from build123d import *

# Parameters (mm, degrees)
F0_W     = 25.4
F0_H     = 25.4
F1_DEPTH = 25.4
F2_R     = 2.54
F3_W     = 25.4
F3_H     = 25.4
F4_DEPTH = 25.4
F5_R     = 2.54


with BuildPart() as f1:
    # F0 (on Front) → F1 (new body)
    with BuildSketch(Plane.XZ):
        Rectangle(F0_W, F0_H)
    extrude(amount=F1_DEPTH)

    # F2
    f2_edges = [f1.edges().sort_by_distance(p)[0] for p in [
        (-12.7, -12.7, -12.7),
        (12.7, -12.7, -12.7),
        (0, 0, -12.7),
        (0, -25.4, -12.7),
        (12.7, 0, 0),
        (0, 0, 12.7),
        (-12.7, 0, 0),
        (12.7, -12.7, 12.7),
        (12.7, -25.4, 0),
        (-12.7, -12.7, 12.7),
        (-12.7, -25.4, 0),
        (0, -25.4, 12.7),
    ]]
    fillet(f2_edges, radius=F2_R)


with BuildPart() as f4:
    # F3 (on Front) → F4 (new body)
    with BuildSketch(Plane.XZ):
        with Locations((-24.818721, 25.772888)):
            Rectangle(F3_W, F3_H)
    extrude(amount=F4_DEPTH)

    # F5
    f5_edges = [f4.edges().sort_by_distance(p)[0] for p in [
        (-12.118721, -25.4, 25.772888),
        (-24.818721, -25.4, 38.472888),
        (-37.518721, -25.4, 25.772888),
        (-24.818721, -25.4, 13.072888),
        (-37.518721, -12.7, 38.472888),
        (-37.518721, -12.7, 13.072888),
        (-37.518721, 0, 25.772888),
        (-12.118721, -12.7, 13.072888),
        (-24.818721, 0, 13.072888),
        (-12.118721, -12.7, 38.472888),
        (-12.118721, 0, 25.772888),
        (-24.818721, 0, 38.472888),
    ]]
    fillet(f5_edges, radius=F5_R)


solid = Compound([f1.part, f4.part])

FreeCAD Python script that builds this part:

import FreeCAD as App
import Part
import Sketcher
Q = App.Units.Quantity


def add_polygon(sketch, points):
    """Adds a closed chain of lines whose ends are joined by coincident constraints."""
    first, n = sketch.GeometryCount, len(points)
    for a, b in zip(points, points[1:] + points[:1]):
        sketch.addGeometry(Part.LineSegment(App.Vector(*a, 0), App.Vector(*b, 0)), False)
    for i in range(n):
        sketch.addConstraint(Sketcher.Constraint("Coincident", first + i, 2, first + (i + 1) % n, 1))

doc = App.newDocument("Part")
body = doc.addObject("PartDesign::Body", "Body")

sketch1 = body.newObject("Sketcher::SketchObject", "Sketch")
sketch1.AttachmentSupport = (doc.getObject("XZ_Plane"), [""])
sketch1.MapMode = "FlatFace"
add_polygon(sketch1, [(-13, 13), (-13, -13), (13, -13), (13, 13)])
sketch1.addConstraint(Sketcher.Constraint("Vertical", 0))
sketch1.addConstraint(Sketcher.Constraint("Horizontal", 1))
sketch1.addConstraint(Sketcher.Constraint("Vertical", 2))
sketch1.addConstraint(Sketcher.Constraint("Horizontal", 3))
sketch1.addConstraint(Sketcher.Constraint("Symmetric", 0, 2, 2, 2, -1, 1))
sketch1.addConstraint(Sketcher.Constraint("Equal", 3, 0))
sketch1.addConstraint(Sketcher.Constraint("DistanceX", 1, 1, 1, 2, Q("1 in")))
pad1 = body.newObject("PartDesign::Pad", "Pad")
pad1.Profile = sketch1
pad1.Length = Q("1 in")
doc.recompute()

fillet = body.newObject("PartDesign::Fillet", "Fillet")
fillet.Base = (pad1, ["Edge1"])
fillet.UseAllEdges = True
fillet.Radius = Q("0.1 in")
body2 = doc.addObject("PartDesign::Body", "Body001")

sketch2 = body2.newObject("Sketcher::SketchObject", "Sketch001")
sketch2.AttachmentSupport = (doc.getObject("XZ_Plane001"), [""])
sketch2.MapMode = "FlatFace"
add_polygon(sketch2, [(-38, 38), (-38, 13), (-12, 13), (-12, 38)])
sketch2.addConstraint(Sketcher.Constraint("Vertical", 0))
sketch2.addConstraint(Sketcher.Constraint("Horizontal", 1))
sketch2.addConstraint(Sketcher.Constraint("Vertical", 2))
sketch2.addConstraint(Sketcher.Constraint("Horizontal", 3))
sketch2.addConstraint(Sketcher.Constraint("Equal", 3, 0))
sketch2.addConstraint(Sketcher.Constraint("DistanceX", 1, 1, 1, 2, Q("1 in")))
sketch2.addConstraint(Sketcher.Constraint("DistanceX", 0, 2, -1, 1, Q("37.518721 mm")))
sketch2.addConstraint(Sketcher.Constraint("DistanceY", -1, 1, 0, 2, Q("13.072888 mm")))
pad2 = body2.newObject("PartDesign::Pad", "Pad001")
pad2.Profile = sketch2
pad2.Length = Q("1 in")
doc.recompute()

fillet2 = body2.newObject("PartDesign::Fillet", "Fillet001")
fillet2.Base = (pad2, ["Edge1"])
fillet2.UseAllEdges = True
fillet2.Radius = Q("0.1 in")

doc.recompute()
